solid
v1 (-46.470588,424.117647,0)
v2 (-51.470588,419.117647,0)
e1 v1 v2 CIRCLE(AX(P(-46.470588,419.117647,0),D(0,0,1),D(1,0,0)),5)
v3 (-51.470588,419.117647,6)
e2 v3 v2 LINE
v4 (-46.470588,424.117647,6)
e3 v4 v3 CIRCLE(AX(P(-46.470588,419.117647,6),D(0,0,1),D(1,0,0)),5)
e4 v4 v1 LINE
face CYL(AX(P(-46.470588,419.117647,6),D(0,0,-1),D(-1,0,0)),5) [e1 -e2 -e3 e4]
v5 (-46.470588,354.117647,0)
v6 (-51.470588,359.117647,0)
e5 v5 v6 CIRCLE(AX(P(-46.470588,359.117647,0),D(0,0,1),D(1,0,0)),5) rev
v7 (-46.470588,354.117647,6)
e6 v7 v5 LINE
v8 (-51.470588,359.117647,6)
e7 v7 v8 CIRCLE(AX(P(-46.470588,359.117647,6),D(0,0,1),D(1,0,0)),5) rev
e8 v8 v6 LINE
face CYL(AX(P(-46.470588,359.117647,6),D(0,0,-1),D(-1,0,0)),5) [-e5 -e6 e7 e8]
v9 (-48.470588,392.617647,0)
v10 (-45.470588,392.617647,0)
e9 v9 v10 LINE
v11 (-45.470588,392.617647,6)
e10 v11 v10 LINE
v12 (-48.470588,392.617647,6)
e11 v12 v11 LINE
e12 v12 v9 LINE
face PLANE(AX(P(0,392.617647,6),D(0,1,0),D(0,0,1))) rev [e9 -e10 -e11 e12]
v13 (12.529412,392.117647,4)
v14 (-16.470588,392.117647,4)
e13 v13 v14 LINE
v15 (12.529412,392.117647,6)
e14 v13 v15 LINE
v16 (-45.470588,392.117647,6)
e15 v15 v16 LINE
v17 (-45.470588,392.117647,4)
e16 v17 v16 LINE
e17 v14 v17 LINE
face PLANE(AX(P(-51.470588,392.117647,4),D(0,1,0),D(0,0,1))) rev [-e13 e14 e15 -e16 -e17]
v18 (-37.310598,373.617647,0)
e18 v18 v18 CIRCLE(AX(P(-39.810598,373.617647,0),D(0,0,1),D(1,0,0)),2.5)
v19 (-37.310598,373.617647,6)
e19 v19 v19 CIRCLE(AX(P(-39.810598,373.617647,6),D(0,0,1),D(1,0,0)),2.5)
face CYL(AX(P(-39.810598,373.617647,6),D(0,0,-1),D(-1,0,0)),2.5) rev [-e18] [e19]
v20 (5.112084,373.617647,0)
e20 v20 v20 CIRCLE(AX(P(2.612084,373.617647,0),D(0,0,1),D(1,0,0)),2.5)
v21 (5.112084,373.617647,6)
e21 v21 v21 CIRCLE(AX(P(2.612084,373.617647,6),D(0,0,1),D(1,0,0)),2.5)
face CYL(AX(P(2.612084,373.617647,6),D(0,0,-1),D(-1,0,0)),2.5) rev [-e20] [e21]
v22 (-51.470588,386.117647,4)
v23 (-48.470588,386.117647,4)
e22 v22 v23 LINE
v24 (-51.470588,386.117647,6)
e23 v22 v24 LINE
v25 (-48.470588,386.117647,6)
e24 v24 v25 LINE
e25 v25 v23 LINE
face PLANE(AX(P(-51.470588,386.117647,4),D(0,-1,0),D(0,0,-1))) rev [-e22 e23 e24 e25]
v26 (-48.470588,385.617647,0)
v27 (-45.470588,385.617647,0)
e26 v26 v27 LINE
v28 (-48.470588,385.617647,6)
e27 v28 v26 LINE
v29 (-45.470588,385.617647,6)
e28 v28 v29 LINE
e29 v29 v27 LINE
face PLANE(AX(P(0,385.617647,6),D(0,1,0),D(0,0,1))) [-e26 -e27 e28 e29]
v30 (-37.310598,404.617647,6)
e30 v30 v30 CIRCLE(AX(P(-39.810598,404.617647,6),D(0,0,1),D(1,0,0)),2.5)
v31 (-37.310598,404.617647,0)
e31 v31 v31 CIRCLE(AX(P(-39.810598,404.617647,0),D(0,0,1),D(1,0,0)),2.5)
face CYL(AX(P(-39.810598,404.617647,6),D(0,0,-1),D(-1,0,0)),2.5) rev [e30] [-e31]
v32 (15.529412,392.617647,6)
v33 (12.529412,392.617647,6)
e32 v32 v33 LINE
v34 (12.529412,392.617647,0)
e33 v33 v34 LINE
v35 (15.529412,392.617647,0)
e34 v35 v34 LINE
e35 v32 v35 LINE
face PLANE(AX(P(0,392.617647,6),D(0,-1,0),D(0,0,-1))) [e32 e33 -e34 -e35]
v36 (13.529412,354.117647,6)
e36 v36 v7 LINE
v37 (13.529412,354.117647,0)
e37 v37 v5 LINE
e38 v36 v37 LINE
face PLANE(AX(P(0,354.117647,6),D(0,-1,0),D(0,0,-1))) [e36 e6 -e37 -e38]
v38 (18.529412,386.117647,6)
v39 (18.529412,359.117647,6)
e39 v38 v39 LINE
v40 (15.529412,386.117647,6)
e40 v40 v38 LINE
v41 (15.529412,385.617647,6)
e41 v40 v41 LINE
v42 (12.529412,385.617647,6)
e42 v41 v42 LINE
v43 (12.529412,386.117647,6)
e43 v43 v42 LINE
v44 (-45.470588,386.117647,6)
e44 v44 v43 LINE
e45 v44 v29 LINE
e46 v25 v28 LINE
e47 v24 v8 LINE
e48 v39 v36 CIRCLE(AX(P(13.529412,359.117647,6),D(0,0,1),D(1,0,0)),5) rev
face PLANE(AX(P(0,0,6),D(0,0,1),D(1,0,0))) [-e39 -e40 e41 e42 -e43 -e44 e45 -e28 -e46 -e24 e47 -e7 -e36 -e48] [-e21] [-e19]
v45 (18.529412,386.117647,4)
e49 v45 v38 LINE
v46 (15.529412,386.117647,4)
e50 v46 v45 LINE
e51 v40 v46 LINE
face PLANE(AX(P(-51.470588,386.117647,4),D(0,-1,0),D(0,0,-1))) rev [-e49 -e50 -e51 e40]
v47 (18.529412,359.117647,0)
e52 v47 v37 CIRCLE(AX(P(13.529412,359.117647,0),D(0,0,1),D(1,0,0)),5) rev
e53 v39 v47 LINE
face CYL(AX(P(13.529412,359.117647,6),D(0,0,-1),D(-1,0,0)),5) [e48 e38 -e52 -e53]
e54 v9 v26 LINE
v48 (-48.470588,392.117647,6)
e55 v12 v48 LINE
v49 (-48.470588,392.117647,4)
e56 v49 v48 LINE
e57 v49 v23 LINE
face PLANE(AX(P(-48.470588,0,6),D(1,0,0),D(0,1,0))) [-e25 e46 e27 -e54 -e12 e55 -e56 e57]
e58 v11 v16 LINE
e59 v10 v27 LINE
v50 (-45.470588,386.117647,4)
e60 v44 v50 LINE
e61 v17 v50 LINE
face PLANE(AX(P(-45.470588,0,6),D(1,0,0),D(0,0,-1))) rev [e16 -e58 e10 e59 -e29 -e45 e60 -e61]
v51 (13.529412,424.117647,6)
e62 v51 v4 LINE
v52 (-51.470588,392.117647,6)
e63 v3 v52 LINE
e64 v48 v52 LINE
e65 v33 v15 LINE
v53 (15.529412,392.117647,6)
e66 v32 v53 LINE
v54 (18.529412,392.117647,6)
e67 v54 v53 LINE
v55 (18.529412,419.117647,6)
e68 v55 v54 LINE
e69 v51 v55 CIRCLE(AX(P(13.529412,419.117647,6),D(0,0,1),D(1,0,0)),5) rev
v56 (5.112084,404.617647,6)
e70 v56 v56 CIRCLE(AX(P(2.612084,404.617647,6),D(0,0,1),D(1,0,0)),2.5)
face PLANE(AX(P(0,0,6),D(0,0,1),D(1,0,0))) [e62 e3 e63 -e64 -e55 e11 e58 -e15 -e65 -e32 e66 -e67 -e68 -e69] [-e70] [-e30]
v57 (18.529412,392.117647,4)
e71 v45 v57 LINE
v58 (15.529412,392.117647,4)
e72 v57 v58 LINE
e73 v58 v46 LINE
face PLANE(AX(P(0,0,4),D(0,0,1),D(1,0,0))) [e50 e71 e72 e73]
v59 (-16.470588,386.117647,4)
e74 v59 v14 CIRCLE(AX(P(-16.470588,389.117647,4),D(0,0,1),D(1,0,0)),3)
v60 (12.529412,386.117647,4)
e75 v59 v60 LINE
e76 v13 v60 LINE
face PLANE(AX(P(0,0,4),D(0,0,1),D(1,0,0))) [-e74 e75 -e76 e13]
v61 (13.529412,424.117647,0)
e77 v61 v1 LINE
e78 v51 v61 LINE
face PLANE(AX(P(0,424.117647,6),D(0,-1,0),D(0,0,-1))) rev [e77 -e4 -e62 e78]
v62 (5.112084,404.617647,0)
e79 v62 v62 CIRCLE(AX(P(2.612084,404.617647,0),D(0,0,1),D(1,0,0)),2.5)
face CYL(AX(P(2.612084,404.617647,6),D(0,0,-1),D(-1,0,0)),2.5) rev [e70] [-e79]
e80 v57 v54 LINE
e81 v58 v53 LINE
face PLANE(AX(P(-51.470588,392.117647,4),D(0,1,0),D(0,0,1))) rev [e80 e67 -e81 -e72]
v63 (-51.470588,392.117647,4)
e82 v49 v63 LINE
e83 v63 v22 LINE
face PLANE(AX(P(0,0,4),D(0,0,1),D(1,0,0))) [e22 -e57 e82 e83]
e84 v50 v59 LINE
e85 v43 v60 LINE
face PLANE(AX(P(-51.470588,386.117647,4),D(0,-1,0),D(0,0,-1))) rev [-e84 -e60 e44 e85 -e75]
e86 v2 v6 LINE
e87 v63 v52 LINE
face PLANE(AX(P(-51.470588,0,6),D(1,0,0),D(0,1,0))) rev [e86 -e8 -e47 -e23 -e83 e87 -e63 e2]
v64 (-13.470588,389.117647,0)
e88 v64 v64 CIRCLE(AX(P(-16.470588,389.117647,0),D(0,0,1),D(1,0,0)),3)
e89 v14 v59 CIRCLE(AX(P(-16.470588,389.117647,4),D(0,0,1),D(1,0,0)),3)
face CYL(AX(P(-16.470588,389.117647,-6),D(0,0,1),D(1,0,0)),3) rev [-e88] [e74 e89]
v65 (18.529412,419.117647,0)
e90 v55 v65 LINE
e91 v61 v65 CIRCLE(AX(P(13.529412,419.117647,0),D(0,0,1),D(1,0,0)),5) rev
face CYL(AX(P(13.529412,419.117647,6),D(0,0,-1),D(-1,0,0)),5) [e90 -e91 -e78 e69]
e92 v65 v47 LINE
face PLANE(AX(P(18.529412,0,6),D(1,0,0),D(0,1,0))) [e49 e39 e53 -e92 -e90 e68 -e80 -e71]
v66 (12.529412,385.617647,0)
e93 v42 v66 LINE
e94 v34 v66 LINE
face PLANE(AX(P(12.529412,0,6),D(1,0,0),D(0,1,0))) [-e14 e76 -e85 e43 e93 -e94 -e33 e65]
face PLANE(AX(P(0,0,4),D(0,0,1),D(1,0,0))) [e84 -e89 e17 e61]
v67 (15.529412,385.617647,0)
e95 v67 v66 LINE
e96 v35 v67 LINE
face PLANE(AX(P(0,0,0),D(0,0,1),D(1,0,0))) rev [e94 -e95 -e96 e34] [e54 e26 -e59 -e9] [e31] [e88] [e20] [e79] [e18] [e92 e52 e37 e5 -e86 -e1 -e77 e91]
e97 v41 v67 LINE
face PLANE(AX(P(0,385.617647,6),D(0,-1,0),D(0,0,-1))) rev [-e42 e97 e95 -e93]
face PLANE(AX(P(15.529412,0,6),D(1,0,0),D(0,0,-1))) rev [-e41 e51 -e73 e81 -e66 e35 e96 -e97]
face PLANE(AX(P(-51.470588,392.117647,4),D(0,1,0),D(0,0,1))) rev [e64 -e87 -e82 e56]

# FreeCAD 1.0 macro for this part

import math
import FreeCAD as App
import Part
import Sketcher

V = App.Vector

doc = App.newDocument("Part")
body = doc.addObject("PartDesign::Body", "Body")

sketch1 = body.newObject("Sketcher::SketchObject", "Sketch")
sketch1.AttachmentSupport = (doc.getObject("XY_Plane"), [""])
sketch1.MapMode = "FlatFace"
sketch1.addGeometry([
    Part.ArcOfCircle(Part.Circle(V(13.5, 419.1, 0), V(0, 0, 1), 5), math.radians(0), math.radians(90)),
    Part.LineSegment(V(13.5, 424.1, 0), V(-46.5, 424.1, 0)),
    Part.ArcOfCircle(Part.Circle(V(-46.5, 419.1, 0), V(0, 0, 1), 5), math.radians(90), math.radians(180)),
    Part.LineSegment(V(-51.5, 419.1, 0), V(-51.5, 359.1, 0)),
    Part.ArcOfCircle(Part.Circle(V(-46.5, 359.1, 0), V(0, 0, 1), 5), math.radians(180), math.radians(270)),
    Part.LineSegment(V(-46.5, 354.1, 0), V(13.5, 354.1, 0)),
    Part.ArcOfCircle(Part.Circle(V(13.5, 359.1, 0), V(0, 0, 1), 5), math.radians(-90), math.radians(0)),
    Part.LineSegment(V(18.5, 359.1, 0), V(18.5, 419.1, 0)),
    Part.Circle(V(2.6, 404.6, 0), V(0, 0, 1), 2.5),
    Part.Circle(V(-39.8, 404.6, 0), V(0, 0, 1), 2.5),
    Part.LineSegment(V(12.5, 385.6, 0), V(12.5, 392.6, 0)),
    Part.LineSegment(V(12.5, 392.6, 0), V(15.5, 392.6, 0)),
    Part.LineSegment(V(15.5, 392.6, 0), V(15.5, 385.6, 0)),
    Part.LineSegment(V(15.5, 385.6, 0), V(12.5, 385.6, 0)),
    Part.Circle(V(2.6, 373.6, 0), V(0, 0, 1), 2.5),
    Part.Circle(V(-39.8, 373.6, 0), V(0, 0, 1), 2.5),
    Part.LineSegment(V(-45.5, 385.6, 0), V(-48.5, 385.6, 0)),
    Part.LineSegment(V(-48.5, 385.6, 0), V(-48.5, 392.6, 0)),
    Part.LineSegment(V(-48.5, 392.6, 0), V(-45.5, 392.6, 0)),
    Part.LineSegment(V(-45.5, 392.6, 0), V(-45.5, 385.6, 0)),
], False)
sketch1.addConstraint([
    Sketcher.Constraint("Tangent", 0, 2, 1, 1),
    Sketcher.Constraint("Tangent", 1, 2, 2, 1),
    Sketcher.Constraint("Tangent", 2, 2, 3, 1),
    Sketcher.Constraint("Tangent", 3, 2, 4, 1),
    Sketcher.Constraint("Tangent", 4, 2, 5, 1),
    Sketcher.Constraint("Tangent", 5, 2, 6, 1),
    Sketcher.Constraint("Tangent", 6, 2, 7, 1),
    Sketcher.Constraint("Tangent", 7, 2, 0, 1),
    Sketcher.Constraint("Coincident", 10, 2, 11, 1),
    Sketcher.Constraint("Coincident", 11, 2, 12, 1),
    Sketcher.Constraint("Coincident", 12, 2, 13, 1),
    Sketcher.Constraint("Coincident", 13, 2, 10, 1),
    Sketcher.Constraint("Coincident", 16, 2, 17, 1),
    Sketcher.Constraint("Coincident", 17, 2, 18, 1),
    Sketcher.Constraint("Coincident", 18, 2, 19, 1),
    Sketcher.Constraint("Coincident", 19, 2, 16, 1),
    Sketcher.Constraint("Horizontal", 1),
    Sketcher.Constraint("Vertical", 3),
    Sketcher.Constraint("Horizontal", 5),
    Sketcher.Constraint("Vertical", 7),
    Sketcher.Constraint("Vertical", 10),
    Sketcher.Constraint("Horizontal", 11),
    Sketcher.Constraint("Vertical", 12),
    Sketcher.Constraint("Horizontal", 13),
    Sketcher.Constraint("Horizontal", 16),
    Sketcher.Constraint("Vertical", 17),
    Sketcher.Constraint("Horizontal", 18),
    Sketcher.Constraint("Vertical", 19),
    Sketcher.Constraint("Equal", 0, 2),
    Sketcher.Constraint("Equal", 2, 4),
    Sketcher.Constraint("Equal", 4, 6),
    Sketcher.Constraint("Equal", 8, 9),
    Sketcher.Constraint("Equal", 9, 14),
    Sketcher.Constraint("Equal", 14, 15),
    Sketcher.Constraint("Horizontal", 8, 3, 9, 3),
    Sketcher.Constraint("Horizontal", 14, 3, 15, 3),
    Sketcher.Constraint("Horizontal", 13, 2, 16, 2),
    Sketcher.Constraint("Horizontal", 11, 2, 17, 2),
    Sketcher.Constraint("Vertical", 8, 3, 14, 3),
    Sketcher.Constraint("Vertical", 9, 3, 15, 3),
    Sketcher.Constraint("Equal", 13, 16),
    Sketcher.Constraint("Equal", 5, 3),
    Sketcher.Constraint("Diameter", 8, 5.0),
    Sketcher.Constraint("Radius", 0, 5.0),
    Sketcher.Constraint("DistanceX", 1, 2, 1, 1, 60.0),
    Sketcher.Constraint("DistanceX", 11, 1, 11, 2, 3.0),
    Sketcher.Constraint("DistanceY", 10, 1, 10, 2, 7.0),
    Sketcher.Constraint("DistanceY", 14, 3, 8, 3, 31.0),
    Sketcher.Constraint("DistanceY", 10, 2, 8, 3, 12.0),
    Sketcher.Constraint("DistanceX", 10, 2, 0, 3, 1.0),
    Sketcher.Constraint("DistanceX", 16, 2, 4, 3, 2.0),
    Sketcher.Constraint("DistanceY", 8, 3, 0, 3, 14.5),
    Sketcher.Constraint("DistanceX", 9, 3, -1, 1, 39.810598),
    Sketcher.Constraint("DistanceX", -1, 1, 0, 3, 13.529412),
    Sketcher.Constraint("DistanceX", 8, 3, 0, 3, 10.917328),
    Sketcher.Constraint("DistanceY", -1, 1, 0, 3, 419.117647),
])
pad1 = body.newObject("PartDesign::Pad", "Pad")
pad1.Profile = sketch1
pad1.Length = 6

sketch2 = body.newObject("Sketcher::SketchObject", "Sketch001")
sketch2.AttachmentSupport = (doc.getObject("XY_Plane"), [""])
sketch2.MapMode = "FlatFace"
sketch2.AttachmentOffset = App.Placement(V(0, 0, 6), App.Rotation())
sketch2.addGeometry([
    Part.LineSegment(V(-51, 392, 0), V(-51, 386, 0)),
    Part.LineSegment(V(-51, 386, 0), V(19, 386, 0)),
    Part.LineSegment(V(19, 386, 0), V(19, 392, 0)),
    Part.LineSegment(V(19, 392, 0), V(-51, 392, 0)),
], False)
sketch2.addConstraint([
    Sketcher.Constraint("Coincident", 0, 2, 1, 1),
    Sketcher.Constraint("Coincident", 1, 2, 2, 1),
    Sketcher.Constraint("Coincident", 2, 2, 3, 1),
    Sketcher.Constraint("Coincident", 3, 2, 0, 1),
    Sketcher.Constraint("Vertical", 0),
    Sketcher.Constraint("Horizontal", 1),
    Sketcher.Constraint("Vertical", 2),
    Sketcher.Constraint("Horizontal", 3),
    Sketcher.Constraint("DistanceX", 1, 1, 1, 2, 70.0),
    Sketcher.Constraint("DistanceY", 0, 2, 0, 1, 6.0),
    Sketcher.Constraint("DistanceX", 0, 2, -1, 1, 51.470588),
    Sketcher.Constraint("DistanceY", -1, 1, 0, 2, 386.117647),
])
pocket1 = body.newObject("PartDesign::Pocket", "Pocket")
pocket1.Profile = sketch2
pocket1.Length = 2

sketch3 = body.newObject("Sketcher::SketchObject", "Sketch002")
sketch3.AttachmentSupport = (doc.getObject("XY_Plane"), [""])
sketch3.MapMode = "FlatFace"
sketch3.AttachmentOffset = App.Placement(V(0, 0, 4), App.Rotation())
sketch3.addGeometry(Part.Circle(V(-16.5, 389.1, 0), V(0, 0, 1), 3), False)
sketch3.addConstraint([
    Sketcher.Constraint("Diameter", 0, 6.0),
    Sketcher.Constraint("DistanceX", 0, 3, -1, 1, 16.470588),
    Sketcher.Constraint("DistanceY", -1, 1, 0, 3, 389.117647),
])
pocket2 = body.newObject("PartDesign::Pocket", "Pocket001")
pocket2.Profile = sketch3
pocket2.Length = 10

doc.recompute()
